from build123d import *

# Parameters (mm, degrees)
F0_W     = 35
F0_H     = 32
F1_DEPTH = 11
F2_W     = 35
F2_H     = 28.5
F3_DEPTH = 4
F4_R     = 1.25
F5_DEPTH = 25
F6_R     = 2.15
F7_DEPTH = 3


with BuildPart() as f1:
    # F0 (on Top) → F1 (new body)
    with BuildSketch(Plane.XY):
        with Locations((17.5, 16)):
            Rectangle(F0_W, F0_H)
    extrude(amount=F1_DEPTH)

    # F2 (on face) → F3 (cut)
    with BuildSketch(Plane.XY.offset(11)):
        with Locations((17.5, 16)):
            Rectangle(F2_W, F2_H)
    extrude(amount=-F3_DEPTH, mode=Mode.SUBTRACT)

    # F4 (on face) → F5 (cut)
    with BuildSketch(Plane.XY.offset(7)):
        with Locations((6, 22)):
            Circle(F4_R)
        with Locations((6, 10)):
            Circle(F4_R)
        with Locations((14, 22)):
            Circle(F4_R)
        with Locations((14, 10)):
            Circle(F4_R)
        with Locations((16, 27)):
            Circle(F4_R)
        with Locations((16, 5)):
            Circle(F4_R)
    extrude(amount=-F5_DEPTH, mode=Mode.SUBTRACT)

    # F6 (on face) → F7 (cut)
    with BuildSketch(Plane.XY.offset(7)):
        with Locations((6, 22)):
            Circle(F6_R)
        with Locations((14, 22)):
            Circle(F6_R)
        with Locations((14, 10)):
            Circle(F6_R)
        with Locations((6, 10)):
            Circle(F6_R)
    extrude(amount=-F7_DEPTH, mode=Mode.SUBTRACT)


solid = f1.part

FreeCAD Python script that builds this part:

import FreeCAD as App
import Part
import Sketcher
from FreeCAD import Vector


def add_polygon(sketch, points):
    """Adds a closed chain of lines whose ends are joined by coincident constraints."""
    first, n = sketch.GeometryCount, len(points)
    for a, b in zip(points, points[1:] + points[:1]):
        sketch.addGeometry(Part.LineSegment(App.Vector(*a, 0), App.Vector(*b, 0)), False)
    for i in range(n):
        sketch.addConstraint(Sketcher.Constraint("Coincident", first + i, 2, first + (i + 1) % n, 1))

doc = App.newDocument("Part")
body = doc.addObject("PartDesign::Body", "Body")

# Sketch on XY plane
sketch1 = body.newObject("Sketcher::SketchObject", "Sketch")
sketch1.AttachmentSupport = (doc.getObject("XY_Plane"), [""])
sketch1.MapMode = "FlatFace"
add_polygon(sketch1, [(0, 32), (0, 0), (35, 0), (35, 32)])  # lines 0-3
sketch1.addConstraint(Sketcher.Constraint("Vertical", 0))
sketch1.addConstraint(Sketcher.Constraint("Horizontal", 1))
sketch1.addConstraint(Sketcher.Constraint("Vertical", 2))
sketch1.addConstraint(Sketcher.Constraint("Horizontal", 3))
sketch1.addConstraint(Sketcher.Constraint("Coincident", 0, 2, -1, 1))
sketch1.addConstraint(Sketcher.Constraint("DistanceX", 1, 1, 1, 2, 35.0))
sketch1.addConstraint(Sketcher.Constraint("DistanceY", 0, 2, 0, 1, 32.0))
pad1 = body.newObject("PartDesign::Pad", "Pad")
pad1.Profile = sketch1
pad1.Length = 11

# Sketch on XY plane
sketch2 = body.newObject("Sketcher::SketchObject", "Sketch001")
sketch2.AttachmentSupport = (doc.getObject("XY_Plane"), [""])
sketch2.MapMode = "FlatFace"
sketch2.AttachmentOffset = App.Placement(Vector(0, 0, 11), App.Rotation())
add_polygon(sketch2, [(0, 30), (0, 2), (35, 2), (35, 30)])  # lines 0-3
sketch2.addConstraint(Sketcher.Constraint("Vertical", 0))
sketch2.addConstraint(Sketcher.Constraint("Horizontal", 1))
sketch2.addConstraint(Sketcher.Constraint("Vertical", 2))
sketch2.addConstraint(Sketcher.Constraint("Horizontal", 3))
sketch2.addConstraint(Sketcher.Constraint("PointOnObject", 0, 2, -2))
sketch2.addConstraint(Sketcher.Constraint("DistanceX", 1, 1, 1, 2, 35.0))
sketch2.addConstraint(Sketcher.Constraint("DistanceY", 0, 2, 0, 1, 28.5))
sketch2.addConstraint(Sketcher.Constraint("DistanceY", -1, 1, 0, 2, 1.75))
pocket1 = body.newObject("PartDesign::Pocket", "Pocket")
pocket1.Profile = sketch2
pocket1.Length = 4

# Sketch on XY plane
sketch3 = body.newObject("Sketcher::SketchObject", "Sketch002")
sketch3.AttachmentSupport = (doc.getObject("XY_Plane"), [""])
sketch3.MapMode = "FlatFace"
sketch3.AttachmentOffset = App.Placement(Vector(0, 0, 7), App.Rotation())
sketch3.addGeometry(Part.Circle(Vector(6, 22, 0), Vector(0, 0, 1), 1.2), False)
sketch3.addGeometry(Part.Circle(Vector(6, 10, 0), Vector(0, 0, 1), 1.2), False)
sketch3.addGeometry(Part.Circle(Vector(14, 22, 0), Vector(0, 0, 1), 1.2), False)
sketch3.addGeometry(Part.Circle(Vector(14, 10, 0), Vector(0, 0, 1), 1.2), False)
sketch3.addGeometry(Part.Circle(Vector(16, 27, 0), Vector(0, 0, 1), 1.2), False)
sketch3.addGeometry(Part.Circle(Vector(16, 5, 0), Vector(0, 0, 1), 1.2), False)
sketch3.addConstraint(Sketcher.Constraint("Equal", 0, 1))
sketch3.addConstraint(Sketcher.Constraint("Equal", 1, 2))
sketch3.addConstraint(Sketcher.Constraint("Equal", 2, 3))
sketch3.addConstraint(Sketcher.Constraint("Equal", 3, 4))
sketch3.addConstraint(Sketcher.Constraint("Equal", 4, 5))
sketch3.addConstraint(Sketcher.Constraint("Horizontal", 0, 3, 2, 3))
sketch3.addConstraint(Sketcher.Constraint("Horizontal", 1, 3, 3, 3))
sketch3.addConstraint(Sketcher.Constraint("Vertical", 0, 3, 1, 3))
sketch3.addConstraint(Sketcher.Constraint("Vertical", 2, 3, 3, 3))
sketch3.addConstraint(Sketcher.Constraint("Vertical", 4, 3, 5, 3))
sketch3.addConstraint(Sketcher.Constraint("Diameter", 0, 2.5))
sketch3.addConstraint(Sketcher.Constraint("DistanceX", -1, 1, 0, 3, 6.0))
sketch3.addConstraint(Sketcher.Constraint("DistanceY", -1, 1, 0, 3, 22.0))
sketch3.addConstraint(Sketcher.Constraint("DistanceY", -1, 1, 1, 3, 10.0))
sketch3.addConstraint(Sketcher.Constraint("DistanceX", -1, 1, 2, 3, 14.0))
sketch3.addConstraint(Sketcher.Constraint("DistanceX", -1, 1, 4, 3, 16.0))
sketch3.addConstraint(Sketcher.Constraint("DistanceY", -1, 1, 4, 3, 27.0))
sketch3.addConstraint(Sketcher.Constraint("DistanceY", -1, 1, 5, 3, 5.0))
pocket2 = body.newObject("PartDesign::Pocket", "Pocket001")
pocket2.Profile = sketch3
pocket2.Length = 25

# Sketch on XY plane
sketch4 = body.newObject("Sketcher::SketchObject", "Sketch003")
sketch4.AttachmentSupport = (doc.getObject("XY_Plane"), [""])
sketch4.MapMode = "FlatFace"
sketch4.AttachmentOffset = App.Placement(Vector(0, 0, 7), App.Rotation())
sketch4.addGeometry(Part.Circle(Vector(6, 22, 0), Vector(0, 0, 1), 2.1), False)
sketch4.addGeometry(Part.Circle(Vector(14, 22, 0), Vector(0, 0, 1), 2.1), False)
sketch4.addGeometry(Part.Circle(Vector(14, 10, 0), Vector(0, 0, 1), 2.1), False)
sketch4.addGeometry(Part.Circle(Vector(6, 10, 0), Vector(0, 0, 1), 2.1), False)
sketch4.addConstraint(Sketcher.Constraint("Equal", 0, 1))
sketch4.addConstraint(Sketcher.Constraint("Equal", 1, 2))
sketch4.addConstraint(Sketcher.Constraint("Equal", 2, 3))
sketch4.addConstraint(Sketcher.Constraint("Horizontal", 0, 3, 1, 3))
sketch4.addConstraint(Sketcher.Constraint("Horizontal", 2, 3, 3, 3))
sketch4.addConstraint(Sketcher.Constraint("Vertical", 1, 3, 2, 3))
sketch4.addConstraint(Sketcher.Constraint("Vertical", 0, 3, 3, 3))
sketch4.addConstraint(Sketcher.Constraint("Diameter", 0, 4.3))
sketch4.addConstraint(Sketcher.Constraint("DistanceX", -1, 1, 0, 3, 6.0))
sketch4.addConstraint(Sketcher.Constraint("DistanceY", -1, 1, 0, 3, 22.0))
sketch4.addConstraint(Sketcher.Constraint("DistanceX", -1, 1, 1, 3, 14.0))
sketch4.addConstraint(Sketcher.Constraint("DistanceY", -1, 1, 2, 3, 10.0))
pocket3 = body.newObject("PartDesign::Pocket", "Pocket002")
pocket3.Profile = sketch4
pocket3.Length = 3

doc.recompute()
